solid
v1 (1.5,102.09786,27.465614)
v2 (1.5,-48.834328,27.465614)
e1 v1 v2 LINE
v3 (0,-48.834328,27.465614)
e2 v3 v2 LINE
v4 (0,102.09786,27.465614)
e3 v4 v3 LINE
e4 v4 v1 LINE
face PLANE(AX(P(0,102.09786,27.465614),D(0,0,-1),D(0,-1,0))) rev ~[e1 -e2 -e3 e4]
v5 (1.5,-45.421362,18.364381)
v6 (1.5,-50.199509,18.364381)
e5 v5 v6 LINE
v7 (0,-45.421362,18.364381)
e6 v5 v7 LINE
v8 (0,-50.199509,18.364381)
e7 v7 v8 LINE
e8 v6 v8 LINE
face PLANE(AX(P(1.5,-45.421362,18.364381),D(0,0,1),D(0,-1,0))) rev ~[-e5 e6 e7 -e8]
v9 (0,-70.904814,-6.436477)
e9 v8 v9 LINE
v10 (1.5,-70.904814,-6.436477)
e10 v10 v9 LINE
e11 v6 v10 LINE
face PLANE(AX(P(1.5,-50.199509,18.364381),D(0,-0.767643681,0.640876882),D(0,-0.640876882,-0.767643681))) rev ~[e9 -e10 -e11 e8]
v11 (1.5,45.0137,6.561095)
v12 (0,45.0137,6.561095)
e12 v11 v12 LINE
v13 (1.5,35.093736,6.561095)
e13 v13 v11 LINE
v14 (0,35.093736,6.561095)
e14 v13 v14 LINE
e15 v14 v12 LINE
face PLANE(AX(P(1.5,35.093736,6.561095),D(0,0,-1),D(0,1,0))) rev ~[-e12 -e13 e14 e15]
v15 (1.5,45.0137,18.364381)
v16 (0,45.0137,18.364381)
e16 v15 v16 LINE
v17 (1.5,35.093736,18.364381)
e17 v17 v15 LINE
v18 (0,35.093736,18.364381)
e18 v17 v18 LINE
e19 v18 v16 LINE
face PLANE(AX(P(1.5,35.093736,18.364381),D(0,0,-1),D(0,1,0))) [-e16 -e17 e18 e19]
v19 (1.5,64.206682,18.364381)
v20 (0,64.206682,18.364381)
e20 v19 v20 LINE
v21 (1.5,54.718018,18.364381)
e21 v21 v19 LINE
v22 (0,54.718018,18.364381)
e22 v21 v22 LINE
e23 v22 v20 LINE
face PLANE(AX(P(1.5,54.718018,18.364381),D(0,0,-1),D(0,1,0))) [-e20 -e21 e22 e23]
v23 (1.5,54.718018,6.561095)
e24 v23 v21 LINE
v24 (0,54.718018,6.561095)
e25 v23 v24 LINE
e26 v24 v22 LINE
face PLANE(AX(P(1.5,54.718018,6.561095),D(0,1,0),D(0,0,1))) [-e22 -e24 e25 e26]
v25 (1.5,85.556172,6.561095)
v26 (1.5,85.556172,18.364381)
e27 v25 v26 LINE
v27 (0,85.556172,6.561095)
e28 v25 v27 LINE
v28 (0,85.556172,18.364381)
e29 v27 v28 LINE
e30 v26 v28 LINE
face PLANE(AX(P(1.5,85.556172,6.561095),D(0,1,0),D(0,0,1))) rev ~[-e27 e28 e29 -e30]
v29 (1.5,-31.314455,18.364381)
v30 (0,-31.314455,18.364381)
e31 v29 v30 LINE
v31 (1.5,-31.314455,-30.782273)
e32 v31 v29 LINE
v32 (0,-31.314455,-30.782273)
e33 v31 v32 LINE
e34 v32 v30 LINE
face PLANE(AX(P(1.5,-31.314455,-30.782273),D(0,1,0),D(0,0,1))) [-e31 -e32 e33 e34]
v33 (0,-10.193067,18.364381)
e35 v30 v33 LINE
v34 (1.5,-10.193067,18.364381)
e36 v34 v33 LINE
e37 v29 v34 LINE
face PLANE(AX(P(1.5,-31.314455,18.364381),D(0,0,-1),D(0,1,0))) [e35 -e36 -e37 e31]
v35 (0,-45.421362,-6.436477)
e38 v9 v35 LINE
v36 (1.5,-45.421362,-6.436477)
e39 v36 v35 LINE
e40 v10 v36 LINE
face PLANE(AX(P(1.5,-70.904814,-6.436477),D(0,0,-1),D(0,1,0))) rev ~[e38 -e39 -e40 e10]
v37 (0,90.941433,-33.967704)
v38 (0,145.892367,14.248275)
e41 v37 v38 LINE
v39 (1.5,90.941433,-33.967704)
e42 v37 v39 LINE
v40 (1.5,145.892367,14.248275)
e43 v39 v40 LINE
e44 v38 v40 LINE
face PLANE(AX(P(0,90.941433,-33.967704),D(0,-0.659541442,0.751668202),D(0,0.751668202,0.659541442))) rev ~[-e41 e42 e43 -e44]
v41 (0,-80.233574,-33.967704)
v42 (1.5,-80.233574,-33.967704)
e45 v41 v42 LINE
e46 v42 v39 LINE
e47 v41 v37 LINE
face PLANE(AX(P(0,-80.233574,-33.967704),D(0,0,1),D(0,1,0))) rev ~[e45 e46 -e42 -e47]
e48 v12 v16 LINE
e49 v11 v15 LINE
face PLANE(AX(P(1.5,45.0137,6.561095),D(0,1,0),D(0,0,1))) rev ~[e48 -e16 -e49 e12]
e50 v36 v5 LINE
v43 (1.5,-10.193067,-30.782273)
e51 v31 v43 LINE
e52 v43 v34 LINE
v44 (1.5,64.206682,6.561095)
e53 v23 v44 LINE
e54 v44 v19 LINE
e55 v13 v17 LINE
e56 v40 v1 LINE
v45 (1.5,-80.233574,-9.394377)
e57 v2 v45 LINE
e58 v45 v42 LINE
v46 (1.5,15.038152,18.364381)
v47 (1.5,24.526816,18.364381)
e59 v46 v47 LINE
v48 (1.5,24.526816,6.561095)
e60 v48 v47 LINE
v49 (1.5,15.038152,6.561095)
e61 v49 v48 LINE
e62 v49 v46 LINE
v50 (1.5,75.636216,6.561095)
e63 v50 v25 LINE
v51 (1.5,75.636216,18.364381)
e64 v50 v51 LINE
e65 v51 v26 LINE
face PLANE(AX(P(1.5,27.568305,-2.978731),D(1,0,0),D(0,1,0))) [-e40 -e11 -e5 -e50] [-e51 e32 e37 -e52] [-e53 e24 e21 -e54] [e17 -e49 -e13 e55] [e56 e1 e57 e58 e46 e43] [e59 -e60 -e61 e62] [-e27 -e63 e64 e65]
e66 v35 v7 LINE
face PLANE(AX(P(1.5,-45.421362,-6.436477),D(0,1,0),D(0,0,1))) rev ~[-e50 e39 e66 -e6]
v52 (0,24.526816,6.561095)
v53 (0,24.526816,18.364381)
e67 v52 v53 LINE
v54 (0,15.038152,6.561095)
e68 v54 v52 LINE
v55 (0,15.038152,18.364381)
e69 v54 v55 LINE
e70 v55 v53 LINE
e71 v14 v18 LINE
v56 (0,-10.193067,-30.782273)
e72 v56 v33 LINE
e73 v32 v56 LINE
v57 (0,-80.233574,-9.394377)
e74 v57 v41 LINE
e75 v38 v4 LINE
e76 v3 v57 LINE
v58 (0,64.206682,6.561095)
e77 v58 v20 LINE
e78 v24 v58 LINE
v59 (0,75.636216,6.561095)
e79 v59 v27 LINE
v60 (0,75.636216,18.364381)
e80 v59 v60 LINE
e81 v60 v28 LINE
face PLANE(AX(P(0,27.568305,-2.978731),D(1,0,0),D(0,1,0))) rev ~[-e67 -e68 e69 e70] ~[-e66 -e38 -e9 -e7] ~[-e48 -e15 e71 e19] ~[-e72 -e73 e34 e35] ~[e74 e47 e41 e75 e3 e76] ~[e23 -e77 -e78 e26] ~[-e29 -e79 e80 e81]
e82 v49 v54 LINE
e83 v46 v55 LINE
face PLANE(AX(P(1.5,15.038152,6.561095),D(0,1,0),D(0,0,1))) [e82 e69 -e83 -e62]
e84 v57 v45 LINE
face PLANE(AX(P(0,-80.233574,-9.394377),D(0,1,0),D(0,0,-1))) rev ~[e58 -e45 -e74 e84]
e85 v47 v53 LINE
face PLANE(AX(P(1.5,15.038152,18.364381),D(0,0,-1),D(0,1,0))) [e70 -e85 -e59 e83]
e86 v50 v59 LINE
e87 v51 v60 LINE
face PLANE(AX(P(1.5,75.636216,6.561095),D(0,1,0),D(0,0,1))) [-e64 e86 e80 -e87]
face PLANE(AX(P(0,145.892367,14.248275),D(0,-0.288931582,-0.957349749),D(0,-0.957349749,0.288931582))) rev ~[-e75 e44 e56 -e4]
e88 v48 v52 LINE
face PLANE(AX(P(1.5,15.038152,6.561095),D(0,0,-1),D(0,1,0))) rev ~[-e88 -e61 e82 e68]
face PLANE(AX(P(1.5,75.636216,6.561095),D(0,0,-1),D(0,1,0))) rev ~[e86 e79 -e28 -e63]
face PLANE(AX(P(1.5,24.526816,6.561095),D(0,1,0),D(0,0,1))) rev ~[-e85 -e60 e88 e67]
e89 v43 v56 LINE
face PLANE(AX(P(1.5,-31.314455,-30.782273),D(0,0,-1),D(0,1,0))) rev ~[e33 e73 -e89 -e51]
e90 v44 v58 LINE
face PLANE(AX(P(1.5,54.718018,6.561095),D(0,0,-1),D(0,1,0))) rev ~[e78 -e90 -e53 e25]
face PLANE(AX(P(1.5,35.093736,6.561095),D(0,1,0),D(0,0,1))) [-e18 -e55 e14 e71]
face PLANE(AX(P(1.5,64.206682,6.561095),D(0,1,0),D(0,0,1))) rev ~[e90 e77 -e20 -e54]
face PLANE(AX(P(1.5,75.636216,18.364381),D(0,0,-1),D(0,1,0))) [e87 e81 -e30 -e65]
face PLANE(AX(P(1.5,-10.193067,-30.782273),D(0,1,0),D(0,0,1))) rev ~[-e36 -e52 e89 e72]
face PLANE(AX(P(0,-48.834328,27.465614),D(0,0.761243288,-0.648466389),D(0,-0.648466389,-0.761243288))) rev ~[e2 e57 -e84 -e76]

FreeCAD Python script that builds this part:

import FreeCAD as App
import Part
import Sketcher
from FreeCAD import Vector
Q = App.Units.Quantity

doc = App.newDocument("Part")
body = doc.addObject("PartDesign::Body", "Body")

# Sketch on YZ plane
sketch1 = body.newObject("Sketcher::SketchObject", "Sketch")
sketch1.AttachmentSupport = (doc.getObject("YZ_Plane"), [""])
sketch1.MapMode = "FlatFace"
sketch1.addGeometry([
    Part.LineSegment(Vector(-80, -9, 0), Vector(-80, -34, 0)),  # 0
    Part.LineSegment(Vector(-80, -34, 0), Vector(91, -34, 0)),  # 1
    Part.LineSegment(Vector(91, -34, 0), Vector(146, 14, 0)),  # 2
    Part.LineSegment(Vector(146, 14, 0), Vector(102, 27, 0)),  # 3
    Part.LineSegment(Vector(102, 27, 0), Vector(-49, 27, 0)),  # 4
    Part.LineSegment(Vector(-49, 27, 0), Vector(-80, -9, 0)),  # 5
], False)
sketch1.addConstraint([
    Sketcher.Constraint("Coincident", 0, 2, 1, 1),
    Sketcher.Constraint("Coincident", 1, 2, 2, 1),
    Sketcher.Constraint("Coincident", 2, 2, 3, 1),
    Sketcher.Constraint("Coincident", 3, 2, 4, 1),
    Sketcher.Constraint("Coincident", 4, 2, 5, 1),
    Sketcher.Constraint("Coincident", 5, 2, 0, 1),
    Sketcher.Constraint("Vertical", 0),
    Sketcher.Constraint("Horizontal", 1),
    Sketcher.Constraint("Horizontal", 4),
    Sketcher.Constraint("DistanceX", 4, 2, 4, 1, Q("150.932188 mm")),
    Sketcher.Constraint("DistanceX", 1, 1, 1, 2, Q("171.175007 mm")),
    Sketcher.Constraint("DistanceY", 0, 2, 0, 1, Q("24.573327 mm")),
    Sketcher.Constraint("DistanceX", -1, 1, 3, 2, Q("102.09786 mm")),
    Sketcher.Constraint("DistanceY", 1, 2, 2, 2, Q("48.215979 mm")),
    Sketcher.Constraint("DistanceX", 0, 2, 2, 2, Q("226.125941 mm")),
    Sketcher.Constraint("DistanceY", 2, 2, 3, 2, Q("13.217339 mm")),
    Sketcher.Constraint("DistanceX", 4, 2, 1, 2, Q("139.775761 mm")),
    Sketcher.Constraint("DistanceY", 0, 2, -1, 1, Q("33.967704 mm")),
])
pad1 = body.newObject("PartDesign::Pad", "Pad")
pad1.Profile = sketch1
pad1.Length = 1.5

# Sketch on YZ plane
sketch2 = body.newObject("Sketcher::SketchObject", "Sketch001")
sketch2.AttachmentSupport = (doc.getObject("YZ_Plane"), [""])
sketch2.MapMode = "FlatFace"
sketch2.AttachmentOffset = App.Placement(Vector(0, 0, 1.5), App.Rotation())
sketch2.addGeometry([
    Part.LineSegment(Vector(-50.2, 18.4, 0), Vector(-70.9, -6.4, 0)),  # 0
    Part.LineSegment(Vector(-70.9, -6.4, 0), Vector(-45.4, -6.4, 0)),  # 1
    Part.LineSegment(Vector(-45.4, -6.4, 0), Vector(-45.4, 18.4, 0)),  # 2
    Part.LineSegment(Vector(-45.4, 18.4, 0), Vector(-50.2, 18.4, 0)),  # 3
    Part.LineSegment(Vector(-31.3, 18.4, 0), Vector(-31.3, -30.8, 0)),  # 4
    Part.LineSegment(Vector(-31.3, -30.8, 0), Vector(-10.2, -30.8, 0)),  # 5
    Part.LineSegment(Vector(-10.2, -30.8, 0), Vector(-10.2, 18.4, 0)),  # 6
    Part.LineSegment(Vector(-10.2, 18.4, 0), Vector(-31.3, 18.4, 0)),  # 7
    Part.LineSegment(Vector(15, 18.4, 0), Vector(15, 6.6, 0)),  # 8
    Part.LineSegment(Vector(15, 6.6, 0), Vector(24.5, 6.6, 0)),  # 9
    Part.LineSegment(Vector(24.5, 6.6, 0), Vector(24.5, 18.4, 0)),  # 10
    Part.LineSegment(Vector(24.5, 18.4, 0), Vector(15, 18.4, 0)),  # 11
    Part.LineSegment(Vector(35.1, 18.4, 0), Vector(35.1, 6.6, 0)),  # 12
    Part.LineSegment(Vector(35.1, 6.6, 0), Vector(45, 6.6, 0)),  # 13
    Part.LineSegment(Vector(45, 6.6, 0), Vector(45, 18.4, 0)),  # 14
    Part.LineSegment(Vector(45, 18.4, 0), Vector(35.1, 18.4, 0)),  # 15
    Part.LineSegment(Vector(54.7, 18.4, 0), Vector(54.7, 6.6, 0)),  # 16
    Part.LineSegment(Vector(54.7, 6.6, 0), Vector(64.2, 6.6, 0)),  # 17
    Part.LineSegment(Vector(64.2, 6.6, 0), Vector(64.2, 18.4, 0)),  # 18
    Part.LineSegment(Vector(64.2, 18.4, 0), Vector(54.7, 18.4, 0)),  # 19
    Part.LineSegment(Vector(75.6, 18.4, 0), Vector(75.6, 6.6, 0)),  # 20
    Part.LineSegment(Vector(75.6, 6.6, 0), Vector(85.6, 6.6, 0)),  # 21
    Part.LineSegment(Vector(85.6, 6.6, 0), Vector(85.6, 18.4, 0)),  # 22
    Part.LineSegment(Vector(85.6, 18.4, 0), Vector(75.6, 18.4, 0)),  # 23
], False)
sketch2.addConstraint([
    Sketcher.Constraint("Coincident", 0, 2, 1, 1),
    Sketcher.Constraint("Coincident", 1, 2, 2, 1),
    Sketcher.Constraint("Coincident", 2, 2, 3, 1),
    Sketcher.Constraint("Coincident", 3, 2, 0, 1),
    Sketcher.Constraint("Coincident", 4, 2, 5, 1),
    Sketcher.Constraint("Coincident", 5, 2, 6, 1),
    Sketcher.Constraint("Coincident", 6, 2, 7, 1),
    Sketcher.Constraint("Coincident", 7, 2, 4, 1),
    Sketcher.Constraint("Coincident", 8, 2, 9, 1),
    Sketcher.Constraint("Coincident", 9, 2, 10, 1),
    Sketcher.Constraint("Coincident", 10, 2, 11, 1),
    Sketcher.Constraint("Coincident", 11, 2, 8, 1),
    Sketcher.Constraint("Coincident", 12, 2, 13, 1),
    Sketcher.Constraint("Coincident", 13, 2, 14, 1),
    Sketcher.Constraint("Coincident", 14, 2, 15, 1),
    Sketcher.Constraint("Coincident", 15, 2, 12, 1),
    Sketcher.Constraint("Coincident", 16, 2, 17, 1),
    Sketcher.Constraint("Coincident", 17, 2, 18, 1),
    Sketcher.Constraint("Coincident", 18, 2, 19, 1),
    Sketcher.Constraint("Coincident", 19, 2, 16, 1),
    Sketcher.Constraint("Coincident", 20, 2, 21, 1),
    Sketcher.Constraint("Coincident", 21, 2, 22, 1),
    Sketcher.Constraint("Coincident", 22, 2, 23, 1),
    Sketcher.Constraint("Coincident", 23, 2, 20, 1),
    Sketcher.Constraint("Horizontal", 1),
    Sketcher.Constraint("Vertical", 2),
    Sketcher.Constraint("Horizontal", 3),
    Sketcher.Constraint("Vertical", 4),
    Sketcher.Constraint("Horizontal", 5),
    Sketcher.Constraint("Vertical", 6),
    Sketcher.Constraint("Horizontal", 7),
    Sketcher.Constraint("Vertical", 8),
    Sketcher.Constraint("Horizontal", 9),
    Sketcher.Constraint("Vertical", 10),
    Sketcher.Constraint("Horizontal", 11),
    Sketcher.Constraint("Vertical", 12),
    Sketcher.Constraint("Horizontal", 13),
    Sketcher.Constraint("Vertical", 14),
    Sketcher.Constraint("Horizontal", 15),
    Sketcher.Constraint("Vertical", 16),
    Sketcher.Constraint("Horizontal", 17),
    Sketcher.Constraint("Vertical", 18),
    Sketcher.Constraint("Horizontal", 19),
    Sketcher.Constraint("Vertical", 20),
    Sketcher.Constraint("Horizontal", 21),
    Sketcher.Constraint("Vertical", 22),
    Sketcher.Constraint("Horizontal", 23),
    Sketcher.Constraint("Horizontal", 3, 2, 6, 2),
    Sketcher.Constraint("Horizontal", 7, 2, 10, 2),
    Sketcher.Constraint("Horizontal", 9, 2, 12, 2),
    Sketcher.Constraint("Horizontal", 11, 2, 14, 2),
    Sketcher.Constraint("Horizontal", 13, 2, 16, 2),
    Sketcher.Constraint("Horizontal", 15, 2, 18, 2),
    Sketcher.Constraint("Horizontal", 17, 2, 20, 2),
    Sketcher.Constraint("Horizontal", 19, 2, 22, 2),
    Sketcher.Constraint("Equal", 11, 17),
    Sketcher.Constraint("DistanceX", 1, 1, 1, 2, Q("25.483452 mm")),
    Sketcher.Constraint("DistanceY", 2, 1, 2, 2, Q("24.800858 mm")),
    Sketcher.Constraint("DistanceX", -1, 1, 13, 2, Q("45.0137 mm")),
    Sketcher.Constraint("DistanceX", 16, 2, 20, 2, Q("20.918198 mm")),
    Sketcher.Constraint("DistanceX", 3, 2, 3, 1, Q("4.778147 mm")),
    Sketcher.Constraint("DistanceX", 5, 1, 5, 2, Q("21.121388 mm")),
    Sketcher.Constraint("DistanceX", 9, 1, 9, 2, Q("9.488664 mm")),
    Sketcher.Constraint("DistanceX", 13, 1, 13, 2, Q("9.919964 mm")),
    Sketcher.Constraint("DistanceX", 21, 1, 21, 2, Q("9.919956 mm")),
    Sketcher.Constraint("DistanceY", 4, 2, 4, 1, Q("49.146654 mm")),
    Sketcher.Constraint("DistanceY", 8, 2, 8, 1, Q("11.803286 mm")),
    Sketcher.Constraint("DistanceY", -1, 1, 2, 2, Q("18.364381 mm")),
    Sketcher.Constraint("DistanceX", 3, 2, -1, 1, Q("50.199509 mm")),
    Sketcher.Constraint("DistanceX", -1, 1, 17, 2, Q("64.206682 mm")),
    Sketcher.Constraint("DistanceX", 0, 2, 4, 2, Q("39.590359 mm")),
    Sketcher.Constraint("DistanceX", 6, 2, 8, 2, Q("25.231219 mm")),
])
pocket1 = body.newObject("PartDesign::Pocket", "Pocket")
pocket1.Profile = sketch2
pocket1.Length = 1.5

doc.recompute()
